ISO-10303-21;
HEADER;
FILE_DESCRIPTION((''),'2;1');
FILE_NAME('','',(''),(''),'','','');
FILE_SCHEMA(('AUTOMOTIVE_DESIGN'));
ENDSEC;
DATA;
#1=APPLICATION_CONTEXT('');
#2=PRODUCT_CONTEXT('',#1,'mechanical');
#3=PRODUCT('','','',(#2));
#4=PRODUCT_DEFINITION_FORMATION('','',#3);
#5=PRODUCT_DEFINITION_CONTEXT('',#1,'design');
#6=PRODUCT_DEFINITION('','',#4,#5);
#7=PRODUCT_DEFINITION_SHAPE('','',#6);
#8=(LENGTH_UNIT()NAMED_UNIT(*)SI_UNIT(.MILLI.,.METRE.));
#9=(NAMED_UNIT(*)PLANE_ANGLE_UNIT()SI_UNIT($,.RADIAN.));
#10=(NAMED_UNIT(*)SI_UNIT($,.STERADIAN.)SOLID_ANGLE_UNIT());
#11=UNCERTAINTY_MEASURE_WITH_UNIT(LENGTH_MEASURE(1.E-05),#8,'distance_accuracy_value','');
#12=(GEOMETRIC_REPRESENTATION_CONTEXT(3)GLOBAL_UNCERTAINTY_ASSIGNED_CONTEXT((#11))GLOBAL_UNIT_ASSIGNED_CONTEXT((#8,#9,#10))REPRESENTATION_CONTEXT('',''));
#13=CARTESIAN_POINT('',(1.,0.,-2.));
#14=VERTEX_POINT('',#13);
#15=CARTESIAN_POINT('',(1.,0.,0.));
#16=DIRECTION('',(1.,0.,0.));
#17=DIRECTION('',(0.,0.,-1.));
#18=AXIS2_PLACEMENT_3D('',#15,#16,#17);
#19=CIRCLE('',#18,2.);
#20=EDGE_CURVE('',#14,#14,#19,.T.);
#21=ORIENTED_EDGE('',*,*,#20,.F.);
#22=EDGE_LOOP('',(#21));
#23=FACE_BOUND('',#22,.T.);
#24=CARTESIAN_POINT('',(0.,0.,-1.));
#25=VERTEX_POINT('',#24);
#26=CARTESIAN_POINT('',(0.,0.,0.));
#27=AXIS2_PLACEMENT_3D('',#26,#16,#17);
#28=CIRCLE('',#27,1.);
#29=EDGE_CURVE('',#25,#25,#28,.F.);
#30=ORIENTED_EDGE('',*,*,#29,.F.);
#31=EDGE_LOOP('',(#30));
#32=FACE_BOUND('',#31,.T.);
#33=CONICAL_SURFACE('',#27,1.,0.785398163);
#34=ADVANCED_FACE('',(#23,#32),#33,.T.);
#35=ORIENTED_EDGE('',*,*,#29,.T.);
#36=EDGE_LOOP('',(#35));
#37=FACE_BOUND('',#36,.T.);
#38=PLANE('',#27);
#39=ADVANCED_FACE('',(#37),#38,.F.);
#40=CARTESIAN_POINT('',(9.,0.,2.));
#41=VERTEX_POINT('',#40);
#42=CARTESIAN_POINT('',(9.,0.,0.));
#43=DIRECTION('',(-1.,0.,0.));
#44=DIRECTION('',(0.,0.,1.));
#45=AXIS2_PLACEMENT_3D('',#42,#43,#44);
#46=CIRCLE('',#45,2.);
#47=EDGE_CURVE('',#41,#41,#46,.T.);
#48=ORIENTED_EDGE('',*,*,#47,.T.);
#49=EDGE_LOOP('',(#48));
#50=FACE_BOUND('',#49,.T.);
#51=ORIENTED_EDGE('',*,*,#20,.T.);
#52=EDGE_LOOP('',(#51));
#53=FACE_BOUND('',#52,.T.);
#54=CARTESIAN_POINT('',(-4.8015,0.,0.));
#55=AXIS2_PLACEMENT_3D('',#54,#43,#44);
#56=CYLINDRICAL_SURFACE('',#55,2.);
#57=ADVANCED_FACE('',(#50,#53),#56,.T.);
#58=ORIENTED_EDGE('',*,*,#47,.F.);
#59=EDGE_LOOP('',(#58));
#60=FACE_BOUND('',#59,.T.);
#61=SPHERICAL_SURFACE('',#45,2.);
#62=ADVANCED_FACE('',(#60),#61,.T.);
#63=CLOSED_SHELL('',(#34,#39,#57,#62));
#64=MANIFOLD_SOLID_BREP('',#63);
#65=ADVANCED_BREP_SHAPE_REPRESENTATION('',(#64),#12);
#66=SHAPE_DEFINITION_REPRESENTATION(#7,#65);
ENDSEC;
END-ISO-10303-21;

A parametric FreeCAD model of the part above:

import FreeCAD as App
import Part
import Sketcher
from FreeCAD import Vector
Q = App.Units.Quantity


def edges_at(feature, points):
    """Names of the edges that pass closest to the given points."""
    edges = feature.Shape.Edges
    near = lambda p: min(range(len(edges)), key=lambda i: edges[i].distToShape(Part.Vertex(*p))[0])
    return sorted({f"Edge{near(p) + 1}" for p in points})

doc = App.newDocument("Part")
params = doc.addObject("Spreadsheet::Sheet", "Params")
for row, (alias, value) in enumerate([
    ("sketch1_width", "11 mm"),
    ("sketch1_height", "2 mm"),
    ("revolution_angle", "360 deg"),
    ("chamfer_size", "1 mm"),
    ("fillet_radius", "2 mm"),
], start=1):
    params.set(f"A{row}", alias)
    params.set(f"B{row}", "=" + value)
    params.setAlias(f"B{row}", alias)

body = doc.addObject("PartDesign::Body", "Body")

# Sketch on XY plane
sketch1 = doc.addObject("Sketcher::SketchObject", "Sketch")
body.addObject(sketch1)
sketch1.AttachmentSupport = (doc.XY_Plane, [""])
sketch1.MapMode = "FlatFace"
sketch1.addGeometry([
    Part.LineSegment(Vector(0, 2, 0), Vector(0, 0, 0)),
    Part.LineSegment(Vector(0, 0, 0), Vector(11, 0, 0)),
    Part.LineSegment(Vector(11, 0, 0), Vector(11, 2, 0)),
    Part.LineSegment(Vector(11, 2, 0), Vector(0, 2, 0)),
], False)
sketch1.addConstraint([
    Sketcher.Constraint("Coincident", 0, 2, 1, 1),
    Sketcher.Constraint("Coincident", 1, 2, 2, 1),
    Sketcher.Constraint("Coincident", 2, 2, 3, 1),
    Sketcher.Constraint("Coincident", 3, 2, 0, 1),
    Sketcher.Constraint("Vertical", 0),
    Sketcher.Constraint("Horizontal", 1),
    Sketcher.Constraint("Vertical", 2),
    Sketcher.Constraint("Horizontal", 3),
    Sketcher.Constraint("Coincident", 0, 2, -1, 1),
    Sketcher.Constraint("DistanceX", 1, 1, 1, 2, Q("11 mm")),
    Sketcher.Constraint("DistanceY", 0, 2, 0, 1, Q("2 mm")),
])
sketch1.setExpression("Constraints[9]", "Params.sketch1_width")
sketch1.setExpression("Constraints[10]", "Params.sketch1_height")
revolution = doc.addObject("PartDesign::Revolution", "Revolution")
body.addObject(revolution)
revolution.Profile = sketch1
revolution.ReferenceAxis = (sketch1, ["H_Axis"])
revolution.setExpression("Angle", "Params.revolution_angle")
doc.recompute()

chamfer = doc.addObject("PartDesign::Chamfer", "Chamfer")
body.addObject(chamfer)
chamfer.Base = (revolution, edges_at(revolution, [(0, -2, 0)]))
chamfer.setExpression("Size", "Params.chamfer_size")
doc.recompute()

fillet = doc.addObject("PartDesign::Fillet", "Fillet")
body.addObject(fillet)
fillet.Base = (chamfer, edges_at(chamfer, [(11, -2, 0)]))
fillet.setExpression("Radius", "Params.fillet_radius")

doc.recompute()
